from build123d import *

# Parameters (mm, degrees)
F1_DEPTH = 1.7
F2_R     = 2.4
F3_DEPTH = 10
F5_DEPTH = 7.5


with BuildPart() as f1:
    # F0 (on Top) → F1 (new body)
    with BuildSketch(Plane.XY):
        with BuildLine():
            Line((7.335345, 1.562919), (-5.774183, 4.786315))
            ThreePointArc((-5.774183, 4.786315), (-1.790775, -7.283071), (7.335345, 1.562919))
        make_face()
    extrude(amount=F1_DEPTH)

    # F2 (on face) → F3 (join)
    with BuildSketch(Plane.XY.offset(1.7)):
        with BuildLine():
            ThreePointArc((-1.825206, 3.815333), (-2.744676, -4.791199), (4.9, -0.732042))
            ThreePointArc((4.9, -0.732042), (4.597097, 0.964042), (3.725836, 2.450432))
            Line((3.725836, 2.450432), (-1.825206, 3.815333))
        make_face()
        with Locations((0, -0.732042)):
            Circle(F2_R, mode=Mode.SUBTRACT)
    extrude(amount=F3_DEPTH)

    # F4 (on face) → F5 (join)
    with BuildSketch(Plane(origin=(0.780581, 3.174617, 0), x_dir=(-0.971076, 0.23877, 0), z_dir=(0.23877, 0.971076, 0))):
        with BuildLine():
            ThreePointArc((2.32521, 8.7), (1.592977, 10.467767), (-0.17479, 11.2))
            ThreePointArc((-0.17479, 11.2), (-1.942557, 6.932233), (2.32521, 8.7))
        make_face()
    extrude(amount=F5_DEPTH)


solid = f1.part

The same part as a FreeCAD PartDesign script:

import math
import FreeCAD as App
import Part
import Sketcher
from FreeCAD import Vector

doc = App.newDocument("Part")
params = doc.addObject("Spreadsheet::Sheet", "Params")
for row, (alias, value) in enumerate([
    ("sketch1_radius", "7.5 mm"),
    ("sketch1_length", "13.5 mm"),
    ("pad1_length", "1.7 mm"),
    ("sketch2_diameter", "4.8 mm"),
    ("sketch2_radius", "4.9 mm"),
    ("pad2_length", "10 mm"),
    ("sketch3_radius", "2.5 mm"),
    ("pad3_length", "7.5 mm"),
], start=1):
    params.set(f"A{row}", alias)
    params.set(f"B{row}", "=" + value)
    params.setAlias(f"B{row}", alias)

body = doc.addObject("PartDesign::Body", "Body")

sketch1 = doc.addObject("Sketcher::SketchObject", "Sketch")
body.addObject(sketch1)
sketch1.AttachmentSupport = (doc.XY_Plane, [""])
sketch1.MapMode = "FlatFace"
sketch1.addGeometry(Part.LineSegment(Vector(7.335345, 1.562919, 0), Vector(-5.774183, 4.786315, 0)), False)
sketch1.addGeometry(Part.ArcOfCircle(Part.Circle(Vector(0, 0, 0), Vector(0, 0, 1), 7.5), math.radians(140.344109), math.radians(372.027971)), False)
sketch1.addConstraint(Sketcher.Constraint("Coincident", 0, 1, 1, 2))
sketch1.addConstraint(Sketcher.Constraint("Coincident", 1, 1, 0, 2))
sketch1.addConstraint(Sketcher.Constraint("Coincident", 1, 3, -1, 1))
sketch1.addConstraint(Sketcher.Constraint("Radius", 1, 7.5))
sketch1.addConstraint(Sketcher.Constraint("Distance", 0, 13.5))
sketch1.addConstraint(Sketcher.Constraint("DistanceY", -1, 1, 0, 1, 1.562919))
sketch1.setExpression("Constraints[3]", "Params.sketch1_radius")
sketch1.setExpression("Constraints[4]", "Params.sketch1_length")
pad1 = doc.addObject("PartDesign::Pad", "Pad")
body.addObject(pad1)
pad1.Profile = sketch1
pad1.setExpression("Length", "Params.pad1_length")

sketch2 = doc.addObject("Sketcher::SketchObject", "Sketch001")
body.addObject(sketch2)
sketch2.AttachmentSupport = (doc.XY_Plane, [""])
sketch2.MapMode = "FlatFace"
sketch2.AttachmentOffset = App.Placement(Vector(0, 0, 1.7), App.Rotation())
sketch2.addGeometry(Part.ArcOfCircle(Part.Circle(Vector(0, -0.732042, 0), Vector(0, 0, 1), 4.9), math.radians(111.869328), math.radians(360.000004)), False)
sketch2.addGeometry(Part.ArcOfCircle(Part.Circle(Vector(0.000007, -0.73204, 0), Vector(0, 0, 1), 4.899993), math.radians(-0.000021), math.radians(40.50279)), False)
sketch2.addGeometry(Part.LineSegment(Vector(3.725836, 2.450432, 0), Vector(-1.825206, 3.815333, 0)), False)
sketch2.addGeometry(Part.Circle(Vector(0, -0.732042, 0), Vector(0, 0, 1), 2.4), False)
sketch2.addConstraint(Sketcher.Constraint("Tangent", 0, 2, 1, 1))
sketch2.addConstraint(Sketcher.Constraint("Coincident", 1, 2, 2, 1))
sketch2.addConstraint(Sketcher.Constraint("Coincident", 2, 2, 0, 1))
sketch2.addConstraint(Sketcher.Constraint("Coincident", 3, 3, 0, 3))
sketch2.addConstraint(Sketcher.Constraint("PointOnObject", 0, 3, -2))
sketch2.addConstraint(Sketcher.Constraint("Horizontal", 3, 3, 0, 2))
sketch2.addConstraint(Sketcher.Constraint("Diameter", 3, 4.8))
sketch2.addConstraint(Sketcher.Constraint("Radius", 0, 4.9))
sketch2.addConstraint(Sketcher.Constraint("Radius", 1, 4.899993))
sketch2.addConstraint(Sketcher.Constraint("DistanceY", 1, 2, 2, 2, 1.364901))
sketch2.addConstraint(Sketcher.Constraint("Distance", 2, 5.716382))
sketch2.addConstraint(Sketcher.Constraint("DistanceY", 1, 3, -1, 1, 0.73204))
sketch2.setExpression("Constraints[6]", "Params.sketch2_diameter")
sketch2.setExpression("Constraints[7]", "Params.sketch2_radius")
pad2 = doc.addObject("PartDesign::Pad", "Pad001")
body.addObject(pad2)
pad2.Profile = sketch2
pad2.setExpression("Length", "Params.pad2_length")

sketch3 = doc.addObject("Sketcher::SketchObject", "Sketch002")
body.addObject(sketch3)
sketch3.Placement = App.Placement(Vector(0.780581, 3.174617, 0), App.Rotation(Vector(-0.97107614, 0.238770035, 0), Vector(0, 0, 0.999999999), Vector(0.238770035, 0.97107614, 0), "ZXY"))
sketch3.addGeometry(Part.ArcOfCircle(Part.Circle(Vector(-0.17479, 8.7, 0), Vector(0, 0, 1), 2.5), math.radians(-0.000004), math.radians(90.000004)), False)
sketch3.addGeometry(Part.ArcOfCircle(Part.Circle(Vector(-0.17479, 8.7, 0), Vector(0, 0, 1), 2.5), math.radians(89.999999), math.radians(360.000001)), False)
sketch3.addConstraint(Sketcher.Constraint("Tangent", 0, 1, 1, 2))
sketch3.addConstraint(Sketcher.Constraint("Coincident", 1, 1, 0, 2))
sketch3.addConstraint(Sketcher.Constraint("Horizontal", 1, 3, 0, 1))
sketch3.addConstraint(Sketcher.Constraint("Vertical", 0, 3, 1, 1))
sketch3.addConstraint(Sketcher.Constraint("Radius", 0, 2.5))
sketch3.addConstraint(Sketcher.Constraint("DistanceY", -1, 1, 0, 3, 8.7))
sketch3.addConstraint(Sketcher.Constraint("DistanceX", 0, 3, -1, 1, 0.17479))
sketch3.setExpression("Constraints[4]", "Params.sketch3_radius")
pad3 = doc.addObject("PartDesign::Pad", "Pad002")
body.addObject(pad3)
pad3.Profile = sketch3
pad3.setExpression("Length", "Params.pad3_length")

doc.recompute()
